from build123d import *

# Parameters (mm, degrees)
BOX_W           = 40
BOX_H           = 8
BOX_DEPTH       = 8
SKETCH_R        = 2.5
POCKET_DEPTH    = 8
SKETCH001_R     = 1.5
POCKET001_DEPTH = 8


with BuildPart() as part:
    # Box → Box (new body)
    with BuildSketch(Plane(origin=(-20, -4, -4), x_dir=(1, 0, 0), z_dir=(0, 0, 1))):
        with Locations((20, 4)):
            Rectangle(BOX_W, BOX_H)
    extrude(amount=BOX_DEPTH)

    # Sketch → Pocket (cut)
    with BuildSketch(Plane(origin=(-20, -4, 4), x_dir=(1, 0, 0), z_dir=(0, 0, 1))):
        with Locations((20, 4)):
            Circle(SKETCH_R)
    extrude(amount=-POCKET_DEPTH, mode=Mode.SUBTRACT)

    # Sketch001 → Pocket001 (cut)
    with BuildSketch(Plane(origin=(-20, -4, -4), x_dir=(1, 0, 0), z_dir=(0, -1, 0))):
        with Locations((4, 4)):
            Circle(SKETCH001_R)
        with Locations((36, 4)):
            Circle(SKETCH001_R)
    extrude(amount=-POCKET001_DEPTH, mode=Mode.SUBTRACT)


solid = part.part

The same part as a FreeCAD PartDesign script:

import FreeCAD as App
import Part
import Sketcher

V = App.Vector
Q = App.Units.Quantity

doc = App.newDocument("Part")
body = doc.addObject("PartDesign::Body", "Body")

sketch1 = doc.addObject("Sketcher::SketchObject", "Sketch")
body.addObject(sketch1)
sketch1.AttachmentSupport = (doc.XY_Plane, [""])
sketch1.MapMode = "FlatFace"
sketch1.AttachmentOffset = App.Placement(V(0, 0, -4), App.Rotation())
sketch1.addGeometry([
    Part.LineSegment(V(-20, 4, 0), V(-20, -4, 0)),
    Part.LineSegment(V(-20, -4, 0), V(20, -4, 0)),
    Part.LineSegment(V(20, -4, 0), V(20, 4, 0)),
    Part.LineSegment(V(20, 4, 0), V(-20, 4, 0)),
], False)
sketch1.addConstraint([
    Sketcher.Constraint("Coincident", 0, 2, 1, 1),
    Sketcher.Constraint("Coincident", 1, 2, 2, 1),
    Sketcher.Constraint("Coincident", 2, 2, 3, 1),
    Sketcher.Constraint("Coincident", 3, 2, 0, 1),
    Sketcher.Constraint("Vertical", 0),
    Sketcher.Constraint("Horizontal", 1),
    Sketcher.Constraint("Vertical", 2),
    Sketcher.Constraint("Horizontal", 3),
    Sketcher.Constraint("Symmetric", 0, 2, 2, 2, -1, 1),
    Sketcher.Constraint("DistanceX", 1, 1, 1, 2, Q("40 mm")),
    Sketcher.Constraint("DistanceY", 0, 2, 0, 1, Q("8 mm")),
])
pad1 = doc.addObject("PartDesign::Pad", "Pad")
body.addObject(pad1)
pad1.Profile = sketch1
pad1.Length = 8

sketch2 = doc.addObject("Sketcher::SketchObject", "Sketch001")
body.addObject(sketch2)
sketch2.AttachmentSupport = (doc.XY_Plane, [""])
sketch2.MapMode = "FlatFace"
sketch2.AttachmentOffset = App.Placement(V(0, 0, 4), App.Rotation())
sketch2.addGeometry(Part.Circle(V(0, 0, 0), V(0, 0, 1), 2.5), False)
sketch2.addConstraint([
    Sketcher.Constraint("Coincident", 0, 3, -1, 1),
    Sketcher.Constraint("Diameter", 0, Q("5 mm")),
])
pocket1 = doc.addObject("PartDesign::Pocket", "Pocket")
body.addObject(pocket1)
pocket1.Profile = sketch2
pocket1.Length = 8

sketch3 = doc.addObject("Sketcher::SketchObject", "Sketch002")
body.addObject(sketch3)
sketch3.AttachmentSupport = (doc.XZ_Plane, [""])
sketch3.MapMode = "FlatFace"
sketch3.AttachmentOffset = App.Placement(V(0, 0, 4), App.Rotation())
sketch3.addGeometry([
    Part.Circle(V(-16, 0, 0), V(0, 0, 1), 1.5),
    Part.Circle(V(16, 0, 0), V(0, 0, 1), 1.5),
], False)
sketch3.addConstraint([
    Sketcher.Constraint("Equal", 0, 1),
    Sketcher.Constraint("Symmetric", 0, 3, 1, 3, -1, 1),
    Sketcher.Constraint("PointOnObject", 0, 3, -1),
    Sketcher.Constraint("Diameter", 0, Q("3 mm")),
    Sketcher.Constraint("DistanceX", 0, 3, -1, 1, Q("16 mm")),
])
pocket2 = doc.addObject("PartDesign::Pocket", "Pocket001")
body.addObject(pocket2)
pocket2.Profile = sketch3
pocket2.Length = 8

doc.recompute()
